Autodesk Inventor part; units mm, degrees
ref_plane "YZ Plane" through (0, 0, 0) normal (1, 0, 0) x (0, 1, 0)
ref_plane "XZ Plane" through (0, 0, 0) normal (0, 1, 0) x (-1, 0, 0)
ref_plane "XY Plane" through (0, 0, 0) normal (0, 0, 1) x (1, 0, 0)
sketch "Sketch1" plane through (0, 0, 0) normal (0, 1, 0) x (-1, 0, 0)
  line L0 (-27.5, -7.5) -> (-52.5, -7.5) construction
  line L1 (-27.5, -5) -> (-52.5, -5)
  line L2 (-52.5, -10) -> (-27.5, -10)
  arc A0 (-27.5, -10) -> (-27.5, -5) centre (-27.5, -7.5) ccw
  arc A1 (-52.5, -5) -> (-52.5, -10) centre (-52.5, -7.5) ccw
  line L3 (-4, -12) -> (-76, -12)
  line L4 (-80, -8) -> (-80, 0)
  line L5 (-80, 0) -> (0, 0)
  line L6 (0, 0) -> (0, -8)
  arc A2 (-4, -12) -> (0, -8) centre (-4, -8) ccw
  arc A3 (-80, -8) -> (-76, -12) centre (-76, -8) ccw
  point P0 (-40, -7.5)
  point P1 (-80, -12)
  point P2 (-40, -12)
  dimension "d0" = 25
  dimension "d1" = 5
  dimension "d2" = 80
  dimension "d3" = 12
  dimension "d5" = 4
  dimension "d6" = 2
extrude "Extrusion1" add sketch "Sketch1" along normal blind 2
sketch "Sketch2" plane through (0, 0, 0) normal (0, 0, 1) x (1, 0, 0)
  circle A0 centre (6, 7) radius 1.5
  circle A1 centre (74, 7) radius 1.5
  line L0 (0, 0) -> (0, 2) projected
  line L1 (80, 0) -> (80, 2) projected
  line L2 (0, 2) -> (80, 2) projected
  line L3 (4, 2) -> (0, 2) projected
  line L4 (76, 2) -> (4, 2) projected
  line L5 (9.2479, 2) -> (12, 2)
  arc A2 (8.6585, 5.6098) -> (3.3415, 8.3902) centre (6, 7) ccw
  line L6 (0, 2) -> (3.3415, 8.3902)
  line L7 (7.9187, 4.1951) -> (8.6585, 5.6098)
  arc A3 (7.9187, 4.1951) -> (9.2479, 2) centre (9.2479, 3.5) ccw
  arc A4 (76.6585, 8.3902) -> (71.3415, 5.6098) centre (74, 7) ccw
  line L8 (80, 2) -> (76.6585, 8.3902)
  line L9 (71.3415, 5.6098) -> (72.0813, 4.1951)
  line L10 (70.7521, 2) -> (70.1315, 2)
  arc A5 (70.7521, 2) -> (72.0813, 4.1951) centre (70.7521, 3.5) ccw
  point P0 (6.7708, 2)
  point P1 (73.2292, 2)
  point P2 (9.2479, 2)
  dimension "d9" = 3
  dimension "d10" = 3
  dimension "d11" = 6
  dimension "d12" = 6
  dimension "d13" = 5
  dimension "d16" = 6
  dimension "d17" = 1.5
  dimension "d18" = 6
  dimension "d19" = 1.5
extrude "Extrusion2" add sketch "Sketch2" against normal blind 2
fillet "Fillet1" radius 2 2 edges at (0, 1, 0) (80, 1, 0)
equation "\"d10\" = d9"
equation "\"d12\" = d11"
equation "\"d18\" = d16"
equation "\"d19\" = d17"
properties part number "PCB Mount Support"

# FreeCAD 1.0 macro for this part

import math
import FreeCAD as App
import Part
import Sketcher


def edges_at(feature, points):
    """Names of the edges that pass closest to the given points."""
    edges = feature.Shape.Edges
    near = lambda p: min(range(len(edges)), key=lambda i: edges[i].distToShape(Part.Vertex(*p))[0])
    return sorted({f"Edge{near(p) + 1}" for p in points})

doc = App.newDocument("Part")
params = doc.addObject("Spreadsheet::Sheet", "Params")
for row, (alias, value) in enumerate([
    ("sketch1_radius", "4 mm"),
    ("sketch1_radius2", "2.5 mm"),
    ("sketch1_width", "80 mm"),
    ("sketch1_width2", "25 mm"),
    ("pad1_length", "2 mm"),
    ("sketch2_diameter", "3 mm"),
    ("sketch2_radius", "3 mm"),
    ("pad2_length", "2 mm"),
    ("fillet_radius", "2 mm"),
], start=1):
    params.set(f"A{row}", alias)
    params.set(f"B{row}", "=" + value)
    params.setAlias(f"B{row}", alias)

body = doc.addObject("PartDesign::Body", "Body")

# Sketch on XZ plane
sketch1 = body.newObject("Sketcher::SketchObject", "Sketch")
sketch1.AttachmentSupport = (doc.getObject("XZ_Plane"), [""])
sketch1.MapMode = "FlatFace"
sketch1.addGeometry([
    Part.LineSegment(App.Vector(76, -12, 0), App.Vector(4, -12, 0)),  # 0
    Part.ArcOfCircle(Part.Circle(App.Vector(4, -8, 0), App.Vector(0, 0, 1), 4), math.radians(180), math.radians(270)),  # 1
    Part.LineSegment(App.Vector(0, -8, 0), App.Vector(0, 0, 0)),  # 2
    Part.LineSegment(App.Vector(0, 0, 0), App.Vector(80, 0, 0)),  # 3
    Part.LineSegment(App.Vector(80, 0, 0), App.Vector(80, -8, 0)),  # 4
    Part.ArcOfCircle(Part.Circle(App.Vector(76, -8, 0), App.Vector(0, 0, 1), 4), math.radians(-90), math.radians(0)),  # 5
    Part.LineSegment(App.Vector(52.5, -5, 0), App.Vector(27.5, -5, 0)),  # 6
    Part.ArcOfCircle(Part.Circle(App.Vector(27.5, -7.5, 0), App.Vector(0, 0, 1), 2.5), math.radians(90), math.radians(270)),  # 7
    Part.LineSegment(App.Vector(27.5, -10, 0), App.Vector(52.5, -10, 0)),  # 8
    Part.ArcOfCircle(Part.Circle(App.Vector(52.5, -7.5, 0), App.Vector(0, 0, 1), 2.5), math.radians(-90), math.radians(90)),  # 9
], False)
sketch1.addConstraint([
    Sketcher.Constraint("Tangent", 0, 2, 1, 2),
    Sketcher.Constraint("Tangent", 1, 1, 2, 1),
    Sketcher.Constraint("Coincident", 2, 2, 3, 1),
    Sketcher.Constraint("Coincident", 3, 2, 4, 1),
    Sketcher.Constraint("Tangent", 4, 2, 5, 2),
    Sketcher.Constraint("Tangent", 5, 1, 0, 1),
    Sketcher.Constraint("Tangent", 6, 2, 7, 1),
    Sketcher.Constraint("Tangent", 7, 2, 8, 1),
    Sketcher.Constraint("Tangent", 8, 2, 9, 1),
    Sketcher.Constraint("Tangent", 9, 2, 6, 1),
    Sketcher.Constraint("Horizontal", 0),
    Sketcher.Constraint("Vertical", 2),
    Sketcher.Constraint("Horizontal", 3),
    Sketcher.Constraint("Vertical", 4),
    Sketcher.Constraint("Horizontal", 6),
    Sketcher.Constraint("Horizontal", 8),
    Sketcher.Constraint("Coincident", 2, 2, -1, 1),
    Sketcher.Constraint("Equal", 1, 5),
    Sketcher.Constraint("Radius", 1, 4.0),
    Sketcher.Constraint("Radius", 7, 2.5),
    Sketcher.Constraint("DistanceX", 3, 1, 3, 2, 80.0),
    Sketcher.Constraint("DistanceX", 6, 2, 6, 1, 25.0),
    Sketcher.Constraint("DistanceY", 0, 2, -1, 1, 12.0),
    Sketcher.Constraint("DistanceY", 6, 2, -1, 1, 5.0),
    Sketcher.Constraint("DistanceX", -1, 1, 7, 3, 27.5),
])
sketch1.setExpression("Constraints[18]", "Params.sketch1_radius")
sketch1.setExpression("Constraints[19]", "Params.sketch1_radius2")
sketch1.setExpression("Constraints[20]", "Params.sketch1_width")
sketch1.setExpression("Constraints[21]", "Params.sketch1_width2")
pad1 = body.newObject("PartDesign::Pad", "Pad")
pad1.Profile = sketch1
pad1.setExpression("Length", "Params.pad1_length")
pad1.Reversed = True

# Sketch on XY plane
sketch2 = body.newObject("Sketcher::SketchObject", "Sketch001")
sketch2.AttachmentSupport = (doc.getObject("XY_Plane"), [""])
sketch2.MapMode = "FlatFace"
sketch2.addGeometry([
    Part.LineSegment(App.Vector(3.3415, 8.3902, 0), App.Vector(0, 2, 0)),  # 0
    Part.LineSegment(App.Vector(0, 2, 0), App.Vector(9.2479, 2, 0)),  # 1
    Part.ArcOfCircle(Part.Circle(App.Vector(9.2479, 3.5, 0), App.Vector(0, 0, 1), 1.499979), math.radians(152.392856), math.radians(270)),  # 2
    Part.LineSegment(App.Vector(7.9187, 4.1951, 0), App.Vector(8.6585, 5.6098, 0)),  # 3
    Part.ArcOfCircle(Part.Circle(App.Vector(6, 7, 0), App.Vector(0, 0, 1), 3.000046), math.radians(-27.606259), math.radians(152.393741)),  # 4
    Part.Circle(App.Vector(6, 7, 0), App.Vector(0, 0, 1), 1.5),  # 5
    Part.ArcOfCircle(Part.Circle(App.Vector(70.7521, 3.5, 0), App.Vector(0, 0, 1), 1.5), math.radians(-90), math.radians(27.607144)),  # 6
    Part.LineSegment(App.Vector(70.7521, 2, 0), App.Vector(80, 2, 0)),  # 7
    Part.LineSegment(App.Vector(80, 2, 0), App.Vector(76.6585, 8.3902, 0)),  # 8
    Part.ArcOfCircle(Part.Circle(App.Vector(74, 7, 0), App.Vector(0, 0, 1), 3.000046), math.radians(27.606259), math.radians(207.606259)),  # 9
    Part.LineSegment(App.Vector(71.3415, 5.6098, 0), App.Vector(72.0813, 4.1951, 0)),  # 10
    Part.Circle(App.Vector(74, 7, 0), App.Vector(0, 0, 1), 1.5),  # 11
], False)
sketch2.addConstraint([
    Sketcher.Constraint("Coincident", 0, 2, 1, 1),
    Sketcher.Constraint("Tangent", 1, 2, 2, 2),
    Sketcher.Constraint("Tangent", 2, 1, 3, 1),
    Sketcher.Constraint("Tangent", 3, 2, 4, 1),
    Sketcher.Constraint("Tangent", 4, 2, 0, 1),
    Sketcher.Constraint("Tangent", 6, 1, 7, 1),
    Sketcher.Constraint("Coincident", 7, 2, 8, 1),
    Sketcher.Constraint("Tangent", 8, 2, 9, 1),
    Sketcher.Constraint("Tangent", 9, 2, 10, 1),
    Sketcher.Constraint("Tangent", 10, 2, 6, 2),
    Sketcher.Constraint("Horizontal", 1),
    Sketcher.Constraint("Horizontal", 7),
    Sketcher.Constraint("Coincident", 5, 3, 4, 3),
    Sketcher.Constraint("Coincident", 11, 3, 9, 3),
    Sketcher.Constraint("Equal", 2, 5),
    Sketcher.Constraint("Equal", 5, 6),
    Sketcher.Constraint("Equal", 4, 9),
    Sketcher.Constraint("Equal", 6, 11),
    Sketcher.Constraint("PointOnObject", 0, 2, -2),
    Sketcher.Constraint("Parallel", 0, 3),
    Sketcher.Constraint("Parallel", 8, 10),
    Sketcher.Constraint("Horizontal", 2, 3, 6, 3),
    Sketcher.Constraint("Horizontal", 5, 3, 9, 3),
    Sketcher.Constraint("Horizontal", 4, 2, 8, 2),
    Sketcher.Constraint("Diameter", 5, 3.0),
    Sketcher.Constraint("Radius", 4, 3.0),
    Sketcher.Constraint("DistanceX", -1, 1, 4, 3, 6.0),
    Sketcher.Constraint("DistanceY", 0, 2, 4, 3, 5.0),
    Sketcher.Constraint("DistanceY", -1, 1, 4, 3, 7.0),
    Sketcher.Constraint("DistanceX", -1, 1, 9, 3, 74.0),
])
sketch2.setExpression("Constraints[24]", "Params.sketch2_diameter")
sketch2.setExpression("Constraints[25]", "Params.sketch2_radius")
pad2 = body.newObject("PartDesign::Pad", "Pad001")
pad2.Profile = sketch2
pad2.setExpression("Length", "Params.pad2_length")
pad2.Reversed = True
doc.recompute()

fillet = body.newObject("PartDesign::Fillet", "Fillet")
fillet.Base = (pad2, edges_at(pad2, [(0, 1, 0), (80, 1, 0)]))
fillet.setExpression("Radius", "Params.fillet_radius")

doc.recompute()
